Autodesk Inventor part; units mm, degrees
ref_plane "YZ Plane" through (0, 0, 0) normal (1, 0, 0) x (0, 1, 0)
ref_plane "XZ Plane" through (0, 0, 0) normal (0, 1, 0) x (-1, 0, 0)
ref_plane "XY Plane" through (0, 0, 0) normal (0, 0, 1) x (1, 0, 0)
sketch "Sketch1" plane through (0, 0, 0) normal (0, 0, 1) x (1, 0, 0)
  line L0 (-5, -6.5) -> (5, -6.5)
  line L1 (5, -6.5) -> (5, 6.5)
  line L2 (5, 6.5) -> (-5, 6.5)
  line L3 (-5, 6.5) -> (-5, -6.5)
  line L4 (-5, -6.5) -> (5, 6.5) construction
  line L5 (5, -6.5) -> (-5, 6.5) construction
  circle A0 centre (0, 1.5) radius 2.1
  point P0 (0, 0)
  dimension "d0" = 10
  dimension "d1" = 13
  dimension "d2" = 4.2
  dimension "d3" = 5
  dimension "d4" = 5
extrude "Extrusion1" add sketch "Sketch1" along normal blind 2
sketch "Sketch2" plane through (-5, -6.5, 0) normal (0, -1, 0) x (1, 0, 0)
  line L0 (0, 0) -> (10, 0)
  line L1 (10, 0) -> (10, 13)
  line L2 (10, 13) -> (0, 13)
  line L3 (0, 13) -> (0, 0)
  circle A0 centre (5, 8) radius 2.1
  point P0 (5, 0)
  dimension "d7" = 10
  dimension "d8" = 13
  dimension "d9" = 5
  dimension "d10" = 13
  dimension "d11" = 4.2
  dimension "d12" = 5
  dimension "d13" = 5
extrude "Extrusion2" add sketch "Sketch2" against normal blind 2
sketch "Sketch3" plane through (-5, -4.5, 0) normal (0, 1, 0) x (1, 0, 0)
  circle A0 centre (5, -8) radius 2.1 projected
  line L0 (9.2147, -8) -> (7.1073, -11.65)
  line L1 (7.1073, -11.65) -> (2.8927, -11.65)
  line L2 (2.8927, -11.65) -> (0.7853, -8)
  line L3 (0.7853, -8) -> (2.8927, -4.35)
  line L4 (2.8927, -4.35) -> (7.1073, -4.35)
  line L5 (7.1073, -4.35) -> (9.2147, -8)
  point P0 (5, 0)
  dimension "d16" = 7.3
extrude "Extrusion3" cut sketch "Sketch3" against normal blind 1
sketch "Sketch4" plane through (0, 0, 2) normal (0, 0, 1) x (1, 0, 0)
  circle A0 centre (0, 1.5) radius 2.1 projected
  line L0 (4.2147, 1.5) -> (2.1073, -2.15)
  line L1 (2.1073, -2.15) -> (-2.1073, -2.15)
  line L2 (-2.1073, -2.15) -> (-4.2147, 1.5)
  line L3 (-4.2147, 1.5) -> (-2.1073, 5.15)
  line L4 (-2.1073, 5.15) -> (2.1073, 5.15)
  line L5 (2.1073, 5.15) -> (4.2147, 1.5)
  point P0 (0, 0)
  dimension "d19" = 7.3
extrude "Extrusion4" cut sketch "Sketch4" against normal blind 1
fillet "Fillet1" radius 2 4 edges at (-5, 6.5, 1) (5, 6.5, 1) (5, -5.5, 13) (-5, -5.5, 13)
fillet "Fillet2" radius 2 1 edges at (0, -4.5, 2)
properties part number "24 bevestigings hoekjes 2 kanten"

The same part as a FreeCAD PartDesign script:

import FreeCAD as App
import Part
import Sketcher
from FreeCAD import Vector
Q = App.Units.Quantity


def edges_at(feature, points):
    """Names of the edges that pass closest to the given points."""
    edges = feature.Shape.Edges
    near = lambda p: min(range(len(edges)), key=lambda i: edges[i].distToShape(Part.Vertex(*p))[0])
    return sorted({f"Edge{near(p) + 1}" for p in points})


def add_polygon(sketch, points):
    """Adds a closed chain of lines whose ends are joined by coincident constraints."""
    first, n = sketch.GeometryCount, len(points)
    for a, b in zip(points, points[1:] + points[:1]):
        sketch.addGeometry(Part.LineSegment(App.Vector(*a, 0), App.Vector(*b, 0)), False)
    for i in range(n):
        sketch.addConstraint(Sketcher.Constraint("Coincident", first + i, 2, first + (i + 1) % n, 1))

doc = App.newDocument("Part")
params = doc.addObject("Spreadsheet::Sheet", "Params")
for row, (alias, value) in enumerate([
    ("sketch1_diameter", "4.2 mm"),
    ("sketch1_width", "10 mm"),
    ("sketch1_height", "13 mm"),
    ("pad1_length", "2 mm"),
    ("sketch2_diameter", "4.2 mm"),
    ("sketch2_width", "10 mm"),
    ("sketch2_height", "13 mm"),
    ("pad2_length", "2 mm"),
    ("sketch3_diameter", "4.2 mm"),
    ("pocket1_length", "1 mm"),
    ("sketch4_diameter", "4.2 mm"),
    ("pocket2_length", "1 mm"),
    ("fillet_radius", "2 mm"),
    ("fillet2_radius", "2 mm"),
], start=1):
    params.set(f"A{row}", alias)
    params.set(f"B{row}", "=" + value)
    params.setAlias(f"B{row}", alias)

body = doc.addObject("PartDesign::Body", "Body")

sketch1 = doc.addObject("Sketcher::SketchObject", "Sketch")
body.addObject(sketch1)
sketch1.AttachmentSupport = (doc.XY_Plane, [""])
sketch1.MapMode = "FlatFace"
add_polygon(sketch1, [(-5, 6.5), (-5, -6.5), (5, -6.5), (5, 6.5)])
sketch1.addGeometry(Part.Circle(Vector(0, 1.5, 0), Vector(0, 0, 1), 2.1), False)
sketch1.addConstraint(Sketcher.Constraint("Vertical", 0))
sketch1.addConstraint(Sketcher.Constraint("Horizontal", 1))
sketch1.addConstraint(Sketcher.Constraint("Vertical", 2))
sketch1.addConstraint(Sketcher.Constraint("Horizontal", 3))
sketch1.addConstraint(Sketcher.Constraint("Symmetric", 0, 2, 2, 2, -1, 1))
sketch1.addConstraint(Sketcher.Constraint("PointOnObject", 4, 3, -2))
sketch1.addConstraint(Sketcher.Constraint("Diameter", 4, 4.2))
sketch1.addConstraint(Sketcher.Constraint("DistanceX", 1, 1, 1, 2, 10.0))
sketch1.addConstraint(Sketcher.Constraint("DistanceY", 0, 2, 0, 1, 13.0))
sketch1.addConstraint(Sketcher.Constraint("DistanceY", 4, 3, 2, 2, 5.0))
sketch1.setExpression("Constraints[10]", "Params.sketch1_diameter")
sketch1.setExpression("Constraints[11]", "Params.sketch1_width")
sketch1.setExpression("Constraints[12]", "Params.sketch1_height")
pad1 = doc.addObject("PartDesign::Pad", "Pad")
body.addObject(pad1)
pad1.Profile = sketch1
pad1.setExpression("Length", "Params.pad1_length")

sketch2 = doc.addObject("Sketcher::SketchObject", "Sketch001")
body.addObject(sketch2)
sketch2.AttachmentSupport = (doc.XZ_Plane, [""])
sketch2.MapMode = "FlatFace"
sketch2.AttachmentOffset = App.Placement(Vector(0, 0, 6.5), App.Rotation())
add_polygon(sketch2, [(-5, 13), (-5, 0), (5, 0), (5, 13)])
sketch2.addGeometry(Part.Circle(Vector(0, 8, 0), Vector(0, 0, 1), 2.1), False)
sketch2.addConstraint(Sketcher.Constraint("Vertical", 0))
sketch2.addConstraint(Sketcher.Constraint("Horizontal", 1))
sketch2.addConstraint(Sketcher.Constraint("Vertical", 2))
sketch2.addConstraint(Sketcher.Constraint("Horizontal", 3))
sketch2.addConstraint(Sketcher.Constraint("Symmetric", 0, 2, 1, 2, -1, 1))
sketch2.addConstraint(Sketcher.Constraint("PointOnObject", 4, 3, -2))
sketch2.addConstraint(Sketcher.Constraint("Diameter", 4, 4.2))
sketch2.addConstraint(Sketcher.Constraint("DistanceX", 1, 1, 1, 2, 10.0))
sketch2.addConstraint(Sketcher.Constraint("DistanceY", 0, 2, 0, 1, 13.0))
sketch2.addConstraint(Sketcher.Constraint("DistanceY", 4, 3, 2, 2, 5.0))
sketch2.setExpression("Constraints[10]", "Params.sketch2_diameter")
sketch2.setExpression("Constraints[11]", "Params.sketch2_width")
sketch2.setExpression("Constraints[12]", "Params.sketch2_height")
pad2 = doc.addObject("PartDesign::Pad", "Pad001")
body.addObject(pad2)
pad2.Profile = sketch2
pad2.setExpression("Length", "Params.pad2_length")
pad2.Reversed = True

sketch3 = doc.addObject("Sketcher::SketchObject", "Sketch002")
body.addObject(sketch3)
sketch3.AttachmentSupport = (doc.XZ_Plane, [""])
sketch3.MapMode = "FlatFace"
sketch3.AttachmentOffset = App.Placement(Vector(0, 0, 4.5), App.Rotation())
add_polygon(sketch3, [(2.1, 11.7), (4.2, 8), (2.1, 4.3), (-2.1, 4.3), (-4.2, 8), (-2.1, 11.7)])
sketch3.addGeometry(Part.Circle(Vector(0, 8, 0), Vector(0, 0, 1), 2.1), False)
sketch3.addConstraint(Sketcher.Constraint("Horizontal", 2))
sketch3.addConstraint(Sketcher.Constraint("Horizontal", 5))
sketch3.addConstraint(Sketcher.Constraint("Symmetric", 0, 2, 3, 2, -2))
sketch3.addConstraint(Sketcher.Constraint("PointOnObject", 6, 3, -2))
sketch3.addConstraint(Sketcher.Constraint("Parallel", 0, 3))
sketch3.addConstraint(Sketcher.Constraint("Parallel", 1, 4))
sketch3.addConstraint(Sketcher.Constraint("Horizontal", 6, 3, 0, 2))
sketch3.addConstraint(Sketcher.Constraint("Vertical", 2, 2, 4, 2))
sketch3.addConstraint(Sketcher.Constraint("Vertical", 1, 2, 5, 2))
sketch3.addConstraint(Sketcher.Constraint("Diameter", 6, 4.2))
sketch3.addConstraint(Sketcher.Constraint("DistanceY", 2, 2, 4, 2, 7.3))
sketch3.addConstraint(Sketcher.Constraint("Angle", 0, Q("-59.9992 deg")))
sketch3.addConstraint(Sketcher.Constraint("DistanceY", -1, 1, 6, 3, 8.0))
sketch3.addConstraint(Sketcher.Constraint("DistanceX", 2, 2, 2, 1, 4.2146))
sketch3.setExpression("Constraints[15]", "Params.sketch3_diameter")
pocket1 = doc.addObject("PartDesign::Pocket", "Pocket")
body.addObject(pocket1)
pocket1.Profile = sketch3
pocket1.setExpression("Length", "Params.pocket1_length")
pocket1.Reversed = True

sketch4 = doc.addObject("Sketcher::SketchObject", "Sketch003")
body.addObject(sketch4)
sketch4.AttachmentSupport = (doc.XY_Plane, [""])
sketch4.MapMode = "FlatFace"
sketch4.AttachmentOffset = App.Placement(Vector(0, 0, 2), App.Rotation())
add_polygon(sketch4, [(2.1, -2.1), (4.2, 1.5), (2.1, 5.2), (-2.1, 5.2), (-4.2, 1.5), (-2.1, -2.1)])
sketch4.addGeometry(Part.Circle(Vector(0, 1.5, 0), Vector(0, 0, 1), 2.1), False)
sketch4.addConstraint(Sketcher.Constraint("Horizontal", 2))
sketch4.addConstraint(Sketcher.Constraint("Horizontal", 5))
sketch4.addConstraint(Sketcher.Constraint("Symmetric", 0, 2, 3, 2, -2))
sketch4.addConstraint(Sketcher.Constraint("PointOnObject", 6, 3, -2))
sketch4.addConstraint(Sketcher.Constraint("Parallel", 0, 3))
sketch4.addConstraint(Sketcher.Constraint("Parallel", 1, 4))
sketch4.addConstraint(Sketcher.Constraint("Horizontal", 6, 3, 0, 2))
sketch4.addConstraint(Sketcher.Constraint("Vertical", 2, 2, 4, 2))
sketch4.addConstraint(Sketcher.Constraint("Vertical", 1, 2, 5, 2))
sketch4.addConstraint(Sketcher.Constraint("Diameter", 6, 4.2))
sketch4.addConstraint(Sketcher.Constraint("DistanceY", 4, 2, 2, 2, 7.3))
sketch4.addConstraint(Sketcher.Constraint("Angle", 0, Q("59.9992 deg")))
sketch4.addConstraint(Sketcher.Constraint("DistanceY", -1, 1, 6, 3, 1.5))
sketch4.addConstraint(Sketcher.Constraint("DistanceX", 2, 2, 2, 1, 4.2146))
sketch4.setExpression("Constraints[15]", "Params.sketch4_diameter")
pocket2 = doc.addObject("PartDesign::Pocket", "Pocket001")
body.addObject(pocket2)
pocket2.Profile = sketch4
pocket2.setExpression("Length", "Params.pocket2_length")
doc.recompute()

fillet = doc.addObject("PartDesign::Fillet", "Fillet")
body.addObject(fillet)
fillet.Base = (pocket2, edges_at(pocket2, [
    (-5, 6.5, 1),
    (5, 6.5, 1),
    (5, -5.5, 13),
    (-5, -5.5, 13),
]))
fillet.setExpression("Radius", "Params.fillet_radius")
doc.recompute()

fillet2 = doc.addObject("PartDesign::Fillet", "Fillet001")
body.addObject(fillet2)
fillet2.Base = (fillet, edges_at(fillet, [(0, -4.5, 2)]))
fillet2.setExpression("Radius", "Params.fillet2_radius")

doc.recompute()
